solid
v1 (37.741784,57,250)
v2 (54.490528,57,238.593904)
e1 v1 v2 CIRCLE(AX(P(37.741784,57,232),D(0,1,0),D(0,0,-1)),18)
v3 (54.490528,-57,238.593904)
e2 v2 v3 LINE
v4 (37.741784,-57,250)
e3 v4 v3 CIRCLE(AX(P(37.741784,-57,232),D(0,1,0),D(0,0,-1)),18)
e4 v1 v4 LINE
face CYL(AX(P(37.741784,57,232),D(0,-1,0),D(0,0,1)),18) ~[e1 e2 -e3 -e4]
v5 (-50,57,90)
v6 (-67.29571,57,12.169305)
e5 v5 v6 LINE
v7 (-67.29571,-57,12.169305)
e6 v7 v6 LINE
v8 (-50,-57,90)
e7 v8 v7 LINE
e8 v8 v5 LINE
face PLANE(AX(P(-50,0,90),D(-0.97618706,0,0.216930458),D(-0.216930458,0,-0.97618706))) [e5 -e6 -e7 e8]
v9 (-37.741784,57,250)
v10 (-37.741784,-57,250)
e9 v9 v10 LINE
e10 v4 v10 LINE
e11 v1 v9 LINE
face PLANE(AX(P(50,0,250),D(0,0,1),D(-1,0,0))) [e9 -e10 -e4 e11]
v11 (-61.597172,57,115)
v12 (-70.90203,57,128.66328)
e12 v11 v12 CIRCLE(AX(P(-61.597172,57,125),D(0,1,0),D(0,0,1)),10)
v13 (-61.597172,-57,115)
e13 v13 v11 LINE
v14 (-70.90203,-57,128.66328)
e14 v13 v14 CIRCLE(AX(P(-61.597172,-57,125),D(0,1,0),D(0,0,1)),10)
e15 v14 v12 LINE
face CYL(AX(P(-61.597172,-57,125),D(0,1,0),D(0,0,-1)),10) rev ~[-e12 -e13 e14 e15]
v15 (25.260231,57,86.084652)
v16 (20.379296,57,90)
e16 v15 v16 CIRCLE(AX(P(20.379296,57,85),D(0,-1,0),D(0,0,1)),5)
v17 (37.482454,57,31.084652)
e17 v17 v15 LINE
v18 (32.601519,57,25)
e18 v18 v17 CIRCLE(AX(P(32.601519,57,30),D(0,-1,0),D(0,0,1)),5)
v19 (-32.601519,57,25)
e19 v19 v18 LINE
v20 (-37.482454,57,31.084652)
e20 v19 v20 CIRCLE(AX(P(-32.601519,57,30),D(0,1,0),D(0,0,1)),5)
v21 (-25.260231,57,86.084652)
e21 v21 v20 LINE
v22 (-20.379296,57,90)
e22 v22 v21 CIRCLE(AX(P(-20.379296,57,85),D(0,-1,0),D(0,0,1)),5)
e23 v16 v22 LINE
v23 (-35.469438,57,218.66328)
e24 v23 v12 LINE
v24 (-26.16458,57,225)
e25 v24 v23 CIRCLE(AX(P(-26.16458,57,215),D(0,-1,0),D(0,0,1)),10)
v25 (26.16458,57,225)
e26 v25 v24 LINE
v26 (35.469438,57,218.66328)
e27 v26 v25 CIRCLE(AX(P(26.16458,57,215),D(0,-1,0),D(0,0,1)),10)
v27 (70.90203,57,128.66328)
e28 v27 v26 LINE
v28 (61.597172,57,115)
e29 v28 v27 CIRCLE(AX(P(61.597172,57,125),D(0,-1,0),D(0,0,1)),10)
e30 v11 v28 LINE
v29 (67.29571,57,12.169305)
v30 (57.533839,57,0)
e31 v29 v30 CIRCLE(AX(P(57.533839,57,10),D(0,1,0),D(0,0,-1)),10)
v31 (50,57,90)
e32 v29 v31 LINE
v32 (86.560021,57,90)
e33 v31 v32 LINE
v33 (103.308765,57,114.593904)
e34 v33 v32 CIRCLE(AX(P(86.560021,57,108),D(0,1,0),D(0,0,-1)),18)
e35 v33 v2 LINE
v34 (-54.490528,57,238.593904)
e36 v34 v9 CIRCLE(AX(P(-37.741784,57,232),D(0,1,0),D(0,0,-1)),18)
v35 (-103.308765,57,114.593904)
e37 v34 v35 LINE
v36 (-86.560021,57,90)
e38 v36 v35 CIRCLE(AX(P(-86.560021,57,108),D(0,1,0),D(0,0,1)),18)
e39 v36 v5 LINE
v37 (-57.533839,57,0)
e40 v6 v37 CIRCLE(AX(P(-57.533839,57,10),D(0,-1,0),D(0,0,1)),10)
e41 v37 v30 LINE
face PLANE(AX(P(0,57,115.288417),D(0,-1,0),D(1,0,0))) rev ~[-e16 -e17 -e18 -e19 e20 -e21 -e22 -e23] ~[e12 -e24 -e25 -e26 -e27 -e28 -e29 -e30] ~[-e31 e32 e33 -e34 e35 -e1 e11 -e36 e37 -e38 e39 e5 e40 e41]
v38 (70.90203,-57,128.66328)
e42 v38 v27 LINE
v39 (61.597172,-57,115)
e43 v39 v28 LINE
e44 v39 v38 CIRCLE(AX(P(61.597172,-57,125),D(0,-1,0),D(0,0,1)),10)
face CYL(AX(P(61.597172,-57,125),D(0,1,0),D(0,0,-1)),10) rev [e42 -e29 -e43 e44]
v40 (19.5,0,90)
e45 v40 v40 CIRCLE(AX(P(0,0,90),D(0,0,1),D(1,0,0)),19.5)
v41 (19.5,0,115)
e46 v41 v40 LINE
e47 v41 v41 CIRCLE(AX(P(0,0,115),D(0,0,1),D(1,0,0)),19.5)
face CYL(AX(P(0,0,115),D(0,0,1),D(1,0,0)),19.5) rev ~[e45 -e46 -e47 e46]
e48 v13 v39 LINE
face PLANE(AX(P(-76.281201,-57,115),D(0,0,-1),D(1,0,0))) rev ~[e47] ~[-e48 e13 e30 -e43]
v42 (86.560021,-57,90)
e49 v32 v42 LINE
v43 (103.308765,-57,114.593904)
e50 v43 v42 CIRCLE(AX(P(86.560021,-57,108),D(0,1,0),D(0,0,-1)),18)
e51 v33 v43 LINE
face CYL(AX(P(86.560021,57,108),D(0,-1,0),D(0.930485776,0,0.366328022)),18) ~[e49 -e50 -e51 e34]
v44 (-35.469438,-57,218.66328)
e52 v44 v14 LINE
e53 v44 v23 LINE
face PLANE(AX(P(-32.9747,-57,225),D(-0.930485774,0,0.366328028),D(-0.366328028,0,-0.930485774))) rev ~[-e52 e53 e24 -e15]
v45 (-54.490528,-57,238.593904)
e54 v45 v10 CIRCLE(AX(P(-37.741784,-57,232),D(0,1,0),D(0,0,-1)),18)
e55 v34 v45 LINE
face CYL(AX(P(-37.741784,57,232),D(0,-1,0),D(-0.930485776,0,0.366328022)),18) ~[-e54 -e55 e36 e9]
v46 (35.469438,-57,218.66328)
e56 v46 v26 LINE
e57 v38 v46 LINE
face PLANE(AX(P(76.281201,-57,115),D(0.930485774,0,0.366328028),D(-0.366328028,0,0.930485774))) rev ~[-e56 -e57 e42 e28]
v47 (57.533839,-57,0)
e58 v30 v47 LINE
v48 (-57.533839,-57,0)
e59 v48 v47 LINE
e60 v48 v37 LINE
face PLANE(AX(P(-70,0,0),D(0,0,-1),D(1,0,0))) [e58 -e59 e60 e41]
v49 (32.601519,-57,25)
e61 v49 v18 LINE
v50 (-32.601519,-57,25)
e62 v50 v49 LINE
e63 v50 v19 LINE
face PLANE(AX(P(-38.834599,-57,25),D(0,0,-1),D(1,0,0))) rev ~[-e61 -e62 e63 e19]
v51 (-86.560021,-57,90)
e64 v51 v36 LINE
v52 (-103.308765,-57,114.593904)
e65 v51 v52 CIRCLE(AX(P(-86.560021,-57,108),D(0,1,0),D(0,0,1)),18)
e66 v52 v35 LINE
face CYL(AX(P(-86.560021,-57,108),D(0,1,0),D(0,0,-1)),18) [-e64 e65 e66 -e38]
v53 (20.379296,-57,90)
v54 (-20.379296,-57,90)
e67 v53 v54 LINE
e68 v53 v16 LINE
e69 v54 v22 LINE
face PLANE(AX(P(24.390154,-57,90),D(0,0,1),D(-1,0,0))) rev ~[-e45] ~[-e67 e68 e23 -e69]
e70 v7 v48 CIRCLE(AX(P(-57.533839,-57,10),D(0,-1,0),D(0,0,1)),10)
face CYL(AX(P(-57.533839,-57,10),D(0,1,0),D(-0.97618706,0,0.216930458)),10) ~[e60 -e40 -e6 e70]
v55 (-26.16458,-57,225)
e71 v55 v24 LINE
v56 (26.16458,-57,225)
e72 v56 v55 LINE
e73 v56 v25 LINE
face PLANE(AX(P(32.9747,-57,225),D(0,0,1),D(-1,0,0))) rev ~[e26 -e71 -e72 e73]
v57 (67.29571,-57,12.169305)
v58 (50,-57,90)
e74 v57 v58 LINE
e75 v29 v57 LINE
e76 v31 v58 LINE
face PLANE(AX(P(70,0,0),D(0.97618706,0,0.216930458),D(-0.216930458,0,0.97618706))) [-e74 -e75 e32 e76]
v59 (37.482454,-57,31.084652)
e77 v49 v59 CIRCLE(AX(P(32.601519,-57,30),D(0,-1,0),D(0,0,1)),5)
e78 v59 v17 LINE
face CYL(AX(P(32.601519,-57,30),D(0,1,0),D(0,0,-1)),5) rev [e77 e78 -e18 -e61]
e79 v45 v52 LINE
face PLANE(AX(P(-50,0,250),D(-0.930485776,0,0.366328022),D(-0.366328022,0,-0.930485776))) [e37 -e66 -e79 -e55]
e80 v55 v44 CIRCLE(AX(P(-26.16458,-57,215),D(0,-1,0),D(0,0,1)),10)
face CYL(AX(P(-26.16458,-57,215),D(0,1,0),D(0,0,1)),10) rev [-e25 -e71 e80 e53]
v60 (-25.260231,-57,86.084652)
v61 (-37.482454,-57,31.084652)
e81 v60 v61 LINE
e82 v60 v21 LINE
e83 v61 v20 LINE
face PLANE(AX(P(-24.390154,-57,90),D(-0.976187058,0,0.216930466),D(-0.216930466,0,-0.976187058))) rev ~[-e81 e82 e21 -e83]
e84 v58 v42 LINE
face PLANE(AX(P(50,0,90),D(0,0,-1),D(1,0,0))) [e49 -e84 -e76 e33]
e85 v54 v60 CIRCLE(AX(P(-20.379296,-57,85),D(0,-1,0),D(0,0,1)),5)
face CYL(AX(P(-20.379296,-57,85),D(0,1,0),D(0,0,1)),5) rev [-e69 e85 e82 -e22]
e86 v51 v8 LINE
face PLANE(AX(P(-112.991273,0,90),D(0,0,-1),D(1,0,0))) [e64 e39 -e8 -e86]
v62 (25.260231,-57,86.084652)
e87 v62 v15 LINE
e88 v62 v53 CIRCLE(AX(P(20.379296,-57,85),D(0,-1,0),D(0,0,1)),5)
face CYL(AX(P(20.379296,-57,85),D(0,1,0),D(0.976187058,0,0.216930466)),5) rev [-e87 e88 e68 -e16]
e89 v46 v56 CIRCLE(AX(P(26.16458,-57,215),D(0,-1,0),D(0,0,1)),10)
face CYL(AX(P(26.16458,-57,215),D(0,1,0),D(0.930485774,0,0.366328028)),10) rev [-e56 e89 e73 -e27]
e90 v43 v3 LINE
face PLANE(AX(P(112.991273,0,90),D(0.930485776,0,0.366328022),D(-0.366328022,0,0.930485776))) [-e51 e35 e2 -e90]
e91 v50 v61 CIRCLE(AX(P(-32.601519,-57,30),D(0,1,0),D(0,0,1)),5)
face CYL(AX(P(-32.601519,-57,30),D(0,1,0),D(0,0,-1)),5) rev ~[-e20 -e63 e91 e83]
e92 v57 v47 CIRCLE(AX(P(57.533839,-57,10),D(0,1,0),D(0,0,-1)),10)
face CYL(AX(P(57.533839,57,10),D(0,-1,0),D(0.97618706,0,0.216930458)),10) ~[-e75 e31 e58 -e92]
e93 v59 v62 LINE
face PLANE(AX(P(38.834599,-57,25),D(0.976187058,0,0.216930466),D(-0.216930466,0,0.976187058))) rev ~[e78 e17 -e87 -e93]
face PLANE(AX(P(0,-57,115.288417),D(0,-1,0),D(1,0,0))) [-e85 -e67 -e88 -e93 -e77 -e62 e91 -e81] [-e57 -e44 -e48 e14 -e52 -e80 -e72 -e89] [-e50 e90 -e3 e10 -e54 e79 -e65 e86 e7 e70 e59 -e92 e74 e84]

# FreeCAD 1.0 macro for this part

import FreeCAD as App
import Part
import Sketcher

V = App.Vector
Q = App.Units.Quantity


def edges_at(feature, points):
    """Names of the edges that pass closest to the given points."""
    edges = feature.Shape.Edges
    near = lambda p: min(range(len(edges)), key=lambda i: edges[i].distToShape(Part.Vertex(*p))[0])
    return sorted({f"Edge{near(p) + 1}" for p in points})


def add_polygon(sketch, points):
    """Adds a closed chain of lines whose ends are joined by coincident constraints."""
    first, n = sketch.GeometryCount, len(points)
    for a, b in zip(points, points[1:] + points[:1]):
        sketch.addGeometry(Part.LineSegment(App.Vector(*a, 0), App.Vector(*b, 0)), False)
    for i in range(n):
        sketch.addConstraint(Sketcher.Constraint("Coincident", first + i, 2, first + (i + 1) % n, 1))

doc = App.newDocument("Part")
body = doc.addObject("PartDesign::Body", "Body")

# Sketch on XZ plane
sketch1 = body.newObject("Sketcher::SketchObject", "Sketch")
sketch1.AttachmentSupport = (doc.getObject("XZ_Plane"), [""])
sketch1.MapMode = "FlatFace"
add_polygon(sketch1, [(-70, 0), (70, 0), (50, 90), (113, 90), (50, 250), (-50, 250), (-113, 90), (-50, 90)])  # lines 0-7
sketch1.addConstraint([
    Sketcher.Constraint("Horizontal", 0),
    Sketcher.Constraint("Horizontal", 2),
    Sketcher.Constraint("Horizontal", 4),
    Sketcher.Constraint("Horizontal", 6),
    Sketcher.Constraint("Symmetric", 0, 2, 7, 2, -1, 1),
    Sketcher.Constraint("Symmetric", 2, 2, 5, 2, -2),
    Sketcher.Constraint("Vertical", 1, 2, 3, 2),
    Sketcher.Constraint("Vertical", 4, 2, 6, 2),
    Sketcher.Constraint("Equal", 2, 6),
    Sketcher.Constraint("DistanceX", 0, 1, 0, 2, Q("140 mm")),
    Sketcher.Constraint("DistanceX", 4, 2, 4, 1, Q("100 mm")),
    Sketcher.Constraint("DistanceY", -1, 1, 1, 2, Q("90 mm")),
    Sketcher.Constraint("DistanceY", -1, 1, 3, 2, Q("250 mm")),
    Sketcher.Constraint("DistanceX", 2, 1, 2, 2, Q("62.991273 mm")),
])
pad1 = body.newObject("PartDesign::Pad", "Pad")
pad1.Profile = sketch1
pad1.Length = 114
pad1.Midplane = True
doc.recompute()

fillet = body.newObject("PartDesign::Fillet", "Fillet")
fillet.Base = (pad1, edges_at(pad1, [
    (50, 0, 250),
    (-50, 0, 250),
    (112.991, 0, 90),
    (-112.991, 0, 90),
]))
fillet.Radius = 18
doc.recompute()

fillet2 = body.newObject("PartDesign::Fillet", "Fillet001")
fillet2.Base = (fillet, edges_at(fillet, [(70, 0, 0), (-70, 0, 0)]))
fillet2.Radius = 10

# Sketch on XZ plane
sketch2 = body.newObject("Sketcher::SketchObject", "Sketch001")
sketch2.AttachmentSupport = (doc.getObject("XZ_Plane"), [""])
sketch2.MapMode = "FlatFace"
sketch2.AttachmentOffset = App.Placement(V(0, 0, 57), App.Rotation())
add_polygon(sketch2, [(-39, 25), (39, 25), (24, 90), (-24, 90)])  # lines 0-3
sketch2.addConstraint([
    Sketcher.Constraint("Horizontal", 0),
    Sketcher.Constraint("Horizontal", 2),
    Sketcher.Constraint("Equal", 1, 3),
    Sketcher.Constraint("DistanceY", -1, 1, 0, 2, Q("25 mm")),
    Sketcher.Constraint("DistanceY", -1, 1, 1, 2, Q("90 mm")),
    Sketcher.Constraint("Distance", 1, Q("66.585599 mm")),
    Sketcher.Constraint("DistanceX", -1, 1, 0, 2, Q("38.834599 mm")),
    Sketcher.Constraint("DistanceX", 3, 2, -1, 1, Q("38.834599 mm")),
])
pocket1 = body.newObject("PartDesign::Pocket", "Pocket")
pocket1.Profile = sketch2
pocket1.Type = "ThroughAll"
doc.recompute()

fillet3 = body.newObject("PartDesign::Fillet", "Fillet002")
fillet3.Base = (pocket1, edges_at(pocket1, [
    (-38.835, 0, 25),
    (38.835, 0, 25),
    (-24.39, 0, 90),
    (24.39, 0, 90),
]))
fillet3.Radius = 5

# Sketch on XZ plane
sketch3 = body.newObject("Sketcher::SketchObject", "Sketch002")
sketch3.AttachmentSupport = (doc.getObject("XZ_Plane"), [""])
sketch3.MapMode = "FlatFace"
sketch3.AttachmentOffset = App.Placement(V(0, 0, 57), App.Rotation())
add_polygon(sketch3, [(-76, 115), (76, 115), (33, 225), (-33, 225)])  # lines 0-3
sketch3.addConstraint([
    Sketcher.Constraint("Horizontal", 0),
    Sketcher.Constraint("Horizontal", 2),
    Sketcher.Constraint("Equal", 1, 3),
    Sketcher.Constraint("DistanceY", -1, 1, 0, 2, Q("115 mm")),
    Sketcher.Constraint("DistanceY", -1, 1, 1, 2, Q("225 mm")),
    Sketcher.Constraint("DistanceX", 0, 1, 0, 2, Q("152.562402 mm")),
    Sketcher.Constraint("DistanceX", 2, 2, 2, 1, Q("65.9494 mm")),
    Sketcher.Constraint("DistanceX", -1, 1, 0, 2, Q("76.281201 mm")),
])
pocket2 = body.newObject("PartDesign::Pocket", "Pocket001")
pocket2.Profile = sketch3
pocket2.Type = "ThroughAll"
doc.recompute()

fillet4 = body.newObject("PartDesign::Fillet", "Fillet003")
fillet4.Base = (pocket2, edges_at(pocket2, [
    (-76.281, 0, 115),
    (76.281, 0, 115),
    (32.975, 0, 225),
    (-32.975, 0, 225),
]))
fillet4.Radius = 10

# Sketch on XY plane
sketch4 = body.newObject("Sketcher::SketchObject", "Sketch003")
sketch4.AttachmentSupport = (doc.getObject("XY_Plane"), [""])
sketch4.MapMode = "FlatFace"
sketch4.AttachmentOffset = App.Placement(V(0, 0, 115), App.Rotation())
sketch4.addGeometry(Part.Circle(V(0, 0, 0), V(0, 0, 1), 20), False)
sketch4.addConstraint([
    Sketcher.Constraint("Coincident", 0, 3, -1, 1),
    Sketcher.Constraint("Diameter", 0, Q("39 mm")),
])
pocket3 = body.newObject("PartDesign::Pocket", "Pocket002")
pocket3.Profile = sketch4
pocket3.Length = 25

doc.recompute()
